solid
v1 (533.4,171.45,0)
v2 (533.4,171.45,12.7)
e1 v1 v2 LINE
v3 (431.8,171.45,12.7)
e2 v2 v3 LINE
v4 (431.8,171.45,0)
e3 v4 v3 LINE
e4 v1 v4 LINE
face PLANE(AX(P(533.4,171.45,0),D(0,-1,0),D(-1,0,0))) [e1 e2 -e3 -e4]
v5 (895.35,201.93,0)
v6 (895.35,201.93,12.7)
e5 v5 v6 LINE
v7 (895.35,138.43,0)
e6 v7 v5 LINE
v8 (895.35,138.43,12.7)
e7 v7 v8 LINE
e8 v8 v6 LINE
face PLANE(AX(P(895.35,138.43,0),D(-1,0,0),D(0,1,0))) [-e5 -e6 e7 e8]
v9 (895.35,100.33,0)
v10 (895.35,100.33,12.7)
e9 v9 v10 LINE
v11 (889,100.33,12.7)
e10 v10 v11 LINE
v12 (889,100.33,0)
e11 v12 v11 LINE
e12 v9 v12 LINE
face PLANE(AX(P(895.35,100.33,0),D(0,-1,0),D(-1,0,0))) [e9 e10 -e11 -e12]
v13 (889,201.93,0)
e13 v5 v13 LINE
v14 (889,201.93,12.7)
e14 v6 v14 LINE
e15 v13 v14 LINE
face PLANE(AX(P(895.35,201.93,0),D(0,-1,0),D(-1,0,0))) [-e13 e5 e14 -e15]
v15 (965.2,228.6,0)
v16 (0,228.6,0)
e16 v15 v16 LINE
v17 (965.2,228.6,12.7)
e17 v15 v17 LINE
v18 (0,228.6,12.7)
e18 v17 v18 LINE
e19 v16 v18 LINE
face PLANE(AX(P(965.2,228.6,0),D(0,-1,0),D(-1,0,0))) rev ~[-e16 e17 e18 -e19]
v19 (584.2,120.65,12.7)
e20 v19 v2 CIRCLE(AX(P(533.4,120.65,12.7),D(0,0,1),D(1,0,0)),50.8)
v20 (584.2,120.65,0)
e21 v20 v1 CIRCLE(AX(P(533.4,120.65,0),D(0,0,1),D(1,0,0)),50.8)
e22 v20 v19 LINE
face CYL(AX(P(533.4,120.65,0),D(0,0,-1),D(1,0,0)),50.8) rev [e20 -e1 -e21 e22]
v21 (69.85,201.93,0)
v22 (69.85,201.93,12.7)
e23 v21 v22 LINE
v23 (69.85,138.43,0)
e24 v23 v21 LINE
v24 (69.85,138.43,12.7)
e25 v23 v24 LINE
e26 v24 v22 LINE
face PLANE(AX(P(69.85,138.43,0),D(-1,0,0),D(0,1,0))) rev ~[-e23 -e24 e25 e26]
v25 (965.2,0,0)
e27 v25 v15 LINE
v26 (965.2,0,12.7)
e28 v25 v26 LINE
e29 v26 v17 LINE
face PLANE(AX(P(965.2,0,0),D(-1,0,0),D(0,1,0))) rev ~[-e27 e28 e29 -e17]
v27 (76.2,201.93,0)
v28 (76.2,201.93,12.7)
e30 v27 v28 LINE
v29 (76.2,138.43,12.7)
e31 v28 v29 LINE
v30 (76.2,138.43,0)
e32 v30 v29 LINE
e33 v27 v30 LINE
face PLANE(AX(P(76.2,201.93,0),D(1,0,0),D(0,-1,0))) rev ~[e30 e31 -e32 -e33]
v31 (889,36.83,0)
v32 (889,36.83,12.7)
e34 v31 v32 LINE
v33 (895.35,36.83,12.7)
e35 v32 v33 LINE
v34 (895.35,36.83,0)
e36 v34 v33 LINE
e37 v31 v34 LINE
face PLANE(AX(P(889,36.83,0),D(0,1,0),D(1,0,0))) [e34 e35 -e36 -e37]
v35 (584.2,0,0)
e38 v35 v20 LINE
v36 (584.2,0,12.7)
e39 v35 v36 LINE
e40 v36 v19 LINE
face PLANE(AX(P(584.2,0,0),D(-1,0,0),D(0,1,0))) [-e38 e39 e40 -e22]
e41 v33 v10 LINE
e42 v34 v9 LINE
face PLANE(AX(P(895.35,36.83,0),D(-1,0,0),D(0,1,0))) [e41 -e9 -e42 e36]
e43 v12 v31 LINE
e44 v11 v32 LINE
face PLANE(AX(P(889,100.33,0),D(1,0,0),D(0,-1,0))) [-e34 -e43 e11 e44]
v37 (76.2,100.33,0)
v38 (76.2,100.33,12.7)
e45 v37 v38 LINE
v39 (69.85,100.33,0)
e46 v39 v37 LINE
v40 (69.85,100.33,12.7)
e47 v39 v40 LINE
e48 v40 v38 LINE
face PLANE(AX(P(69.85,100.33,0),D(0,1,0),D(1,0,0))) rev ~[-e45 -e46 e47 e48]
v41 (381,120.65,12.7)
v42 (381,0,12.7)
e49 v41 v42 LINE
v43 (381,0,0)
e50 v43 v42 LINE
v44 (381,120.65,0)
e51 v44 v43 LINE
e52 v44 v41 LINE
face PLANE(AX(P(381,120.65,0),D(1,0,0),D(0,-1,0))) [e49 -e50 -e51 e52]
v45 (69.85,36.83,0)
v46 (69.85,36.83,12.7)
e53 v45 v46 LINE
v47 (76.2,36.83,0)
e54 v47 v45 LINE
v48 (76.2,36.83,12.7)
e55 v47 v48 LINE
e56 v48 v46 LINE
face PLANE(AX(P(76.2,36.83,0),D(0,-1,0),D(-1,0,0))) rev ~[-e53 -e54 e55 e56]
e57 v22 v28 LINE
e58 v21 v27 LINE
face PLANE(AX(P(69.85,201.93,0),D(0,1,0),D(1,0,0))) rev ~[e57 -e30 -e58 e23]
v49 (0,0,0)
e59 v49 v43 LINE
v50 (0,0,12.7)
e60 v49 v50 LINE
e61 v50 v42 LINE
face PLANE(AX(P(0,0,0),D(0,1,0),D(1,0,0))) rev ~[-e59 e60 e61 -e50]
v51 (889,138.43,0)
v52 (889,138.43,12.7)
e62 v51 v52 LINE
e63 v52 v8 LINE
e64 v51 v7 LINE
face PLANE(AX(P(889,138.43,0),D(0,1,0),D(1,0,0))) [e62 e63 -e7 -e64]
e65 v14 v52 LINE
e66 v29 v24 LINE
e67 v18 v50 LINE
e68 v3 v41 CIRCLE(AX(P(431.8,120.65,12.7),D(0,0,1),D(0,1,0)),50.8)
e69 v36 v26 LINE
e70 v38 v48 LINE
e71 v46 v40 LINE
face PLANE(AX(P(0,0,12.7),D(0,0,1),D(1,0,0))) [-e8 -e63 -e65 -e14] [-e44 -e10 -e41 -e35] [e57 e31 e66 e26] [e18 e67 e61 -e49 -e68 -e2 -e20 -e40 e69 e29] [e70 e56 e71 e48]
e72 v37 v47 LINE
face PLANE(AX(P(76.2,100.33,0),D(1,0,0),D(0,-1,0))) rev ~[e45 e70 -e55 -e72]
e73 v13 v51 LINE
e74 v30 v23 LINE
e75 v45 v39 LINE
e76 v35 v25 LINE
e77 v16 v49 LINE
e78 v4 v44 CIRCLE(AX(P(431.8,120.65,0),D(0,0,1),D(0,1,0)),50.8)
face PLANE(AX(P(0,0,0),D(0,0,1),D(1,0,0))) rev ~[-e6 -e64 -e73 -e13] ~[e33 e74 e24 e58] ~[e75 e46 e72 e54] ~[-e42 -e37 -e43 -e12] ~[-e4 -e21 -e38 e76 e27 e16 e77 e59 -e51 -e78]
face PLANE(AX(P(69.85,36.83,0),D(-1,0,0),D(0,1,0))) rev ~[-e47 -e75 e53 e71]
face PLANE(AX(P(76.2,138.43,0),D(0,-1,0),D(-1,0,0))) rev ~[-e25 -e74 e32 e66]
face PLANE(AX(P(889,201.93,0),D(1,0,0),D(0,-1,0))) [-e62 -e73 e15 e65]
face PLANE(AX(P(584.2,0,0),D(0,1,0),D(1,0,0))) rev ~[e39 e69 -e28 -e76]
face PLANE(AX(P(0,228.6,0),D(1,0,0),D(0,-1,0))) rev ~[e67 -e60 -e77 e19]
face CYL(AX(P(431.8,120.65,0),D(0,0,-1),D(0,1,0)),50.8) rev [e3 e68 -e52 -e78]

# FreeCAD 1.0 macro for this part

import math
import FreeCAD as App
import Part
import Sketcher
Q = App.Units.Quantity


def add_polygon(sketch, points):
    """Adds a closed chain of lines whose ends are joined by coincident constraints."""
    first, n = sketch.GeometryCount, len(points)
    for a, b in zip(points, points[1:] + points[:1]):
        sketch.addGeometry(Part.LineSegment(App.Vector(*a, 0), App.Vector(*b, 0)), False)
    for i in range(n):
        sketch.addConstraint(Sketcher.Constraint("Coincident", first + i, 2, first + (i + 1) % n, 1))

doc = App.newDocument("Part")
body = doc.addObject("PartDesign::Body", "Body")

# Sketch on XY plane
sketch1 = body.newObject("Sketcher::SketchObject", "Sketch")
sketch1.AttachmentSupport = (doc.getObject("XY_Plane"), [""])
sketch1.MapMode = "FlatFace"
sketch1.addGeometry(Part.LineSegment(App.Vector(584.2, 0, 0), App.Vector(965.2, 0, 0)), False)  # 0
sketch1.addGeometry(Part.LineSegment(App.Vector(965.2, 0, 0), App.Vector(965.2, 228.6, 0)), False)  # 1
sketch1.addGeometry(Part.LineSegment(App.Vector(965.2, 228.6, 0), App.Vector(0, 228.6, 0)), False)  # 2
sketch1.addGeometry(Part.LineSegment(App.Vector(0, 228.6, 0), App.Vector(0, 0, 0)), False)  # 3
sketch1.addGeometry(Part.LineSegment(App.Vector(0, 0, 0), App.Vector(381, 0, 0)), False)  # 4
sketch1.addGeometry(Part.LineSegment(App.Vector(381, 0, 0), App.Vector(381, 120.65, 0)), False)  # 5
sketch1.addGeometry(Part.ArcOfCircle(Part.Circle(App.Vector(431.8, 120.65, 0), App.Vector(0, 0, 1), 50.8), math.radians(90), math.radians(180)), False)  # 6
sketch1.addGeometry(Part.LineSegment(App.Vector(431.8, 171.45, 0), App.Vector(533.4, 171.45, 0)), False)  # 7
sketch1.addGeometry(Part.ArcOfCircle(Part.Circle(App.Vector(533.4, 120.65, 0), App.Vector(0, 0, 1), 50.8), math.radians(0), math.radians(90)), False)  # 8
sketch1.addGeometry(Part.LineSegment(App.Vector(584.2, 120.65, 0), App.Vector(584.2, 0, 0)), False)  # 9
add_polygon(sketch1, [(69.85, 36.83), (69.85, 100.33), (76.2, 100.33), (76.2, 36.83)])  # lines 10-13
add_polygon(sketch1, [(889, 100.33), (895.35, 100.33), (895.35, 36.83), (889, 36.83)])  # lines 14-17
add_polygon(sketch1, [(69.85, 138.43), (69.85, 201.93), (76.2, 201.93), (76.2, 138.43)])  # lines 18-21
add_polygon(sketch1, [(889, 201.93), (895.35, 201.93), (895.35, 138.43), (889, 138.43)])  # lines 22-25
sketch1.addConstraint(Sketcher.Constraint("Coincident", 0, 2, 1, 1))
sketch1.addConstraint(Sketcher.Constraint("Coincident", 1, 2, 2, 1))
sketch1.addConstraint(Sketcher.Constraint("Coincident", 2, 2, 3, 1))
sketch1.addConstraint(Sketcher.Constraint("Coincident", 3, 2, 4, 1))
sketch1.addConstraint(Sketcher.Constraint("Coincident", 4, 2, 5, 1))
sketch1.addConstraint(Sketcher.Constraint("Tangent", 5, 2, 6, 2))
sketch1.addConstraint(Sketcher.Constraint("Tangent", 6, 1, 7, 1))
sketch1.addConstraint(Sketcher.Constraint("Tangent", 7, 2, 8, 2))
sketch1.addConstraint(Sketcher.Constraint("Tangent", 8, 1, 9, 1))
sketch1.addConstraint(Sketcher.Constraint("Coincident", 9, 2, 0, 1))
sketch1.addConstraint(Sketcher.Constraint("Horizontal", 0))
sketch1.addConstraint(Sketcher.Constraint("Vertical", 1))
sketch1.addConstraint(Sketcher.Constraint("Horizontal", 2))
sketch1.addConstraint(Sketcher.Constraint("Vertical", 3))
sketch1.addConstraint(Sketcher.Constraint("Horizontal", 4))
sketch1.addConstraint(Sketcher.Constraint("Vertical", 5))
sketch1.addConstraint(Sketcher.Constraint("Horizontal", 7))
sketch1.addConstraint(Sketcher.Constraint("Vertical", 9))
sketch1.addConstraint(Sketcher.Constraint("Vertical", 10))
sketch1.addConstraint(Sketcher.Constraint("Horizontal", 11))
sketch1.addConstraint(Sketcher.Constraint("Vertical", 12))
sketch1.addConstraint(Sketcher.Constraint("Horizontal", 13))
sketch1.addConstraint(Sketcher.Constraint("Horizontal", 14))
sketch1.addConstraint(Sketcher.Constraint("Vertical", 15))
sketch1.addConstraint(Sketcher.Constraint("Horizontal", 16))
sketch1.addConstraint(Sketcher.Constraint("Vertical", 17))
sketch1.addConstraint(Sketcher.Constraint("Vertical", 18))
sketch1.addConstraint(Sketcher.Constraint("Horizontal", 19))
sketch1.addConstraint(Sketcher.Constraint("Vertical", 20))
sketch1.addConstraint(Sketcher.Constraint("Horizontal", 21))
sketch1.addConstraint(Sketcher.Constraint("Horizontal", 22))
sketch1.addConstraint(Sketcher.Constraint("Vertical", 23))
sketch1.addConstraint(Sketcher.Constraint("Horizontal", 24))
sketch1.addConstraint(Sketcher.Constraint("Vertical", 25))
sketch1.addConstraint(Sketcher.Constraint("Coincident", 3, 2, -1, 1))
sketch1.addConstraint(Sketcher.Constraint("Equal", 6, 8))
sketch1.addConstraint(Sketcher.Constraint("PointOnObject", 0, 2, -1))
sketch1.addConstraint(Sketcher.Constraint("Horizontal", 11, 2, 14, 2))
sketch1.addConstraint(Sketcher.Constraint("Horizontal", 13, 2, 15, 2))
sketch1.addConstraint(Sketcher.Constraint("Horizontal", 19, 2, 22, 2))
sketch1.addConstraint(Sketcher.Constraint("Horizontal", 21, 2, 23, 2))
sketch1.addConstraint(Sketcher.Constraint("Vertical", 13, 2, 18, 2))
sketch1.addConstraint(Sketcher.Constraint("Vertical", 12, 2, 19, 2))
sketch1.addConstraint(Sketcher.Constraint("Vertical", 15, 2, 22, 2))
sketch1.addConstraint(Sketcher.Constraint("Vertical", 17, 2, 24, 2))
sketch1.addConstraint(Sketcher.Constraint("Equal", 0, 4))
sketch1.addConstraint(Sketcher.Constraint("Equal", 13, 14))
sketch1.addConstraint(Sketcher.Constraint("Equal", 17, 18))
sketch1.addConstraint(Sketcher.Constraint("Radius", 6, Q("2 in")))
sketch1.addConstraint(Sketcher.Constraint("DistanceX", 0, 1, 0, 2, Q("15 in")))
sketch1.addConstraint(Sketcher.Constraint("DistanceX", 2, 2, 2, 1, Q("38 in")))
sketch1.addConstraint(Sketcher.Constraint("DistanceY", 1, 1, 1, 2, Q("9 in")))
sketch1.addConstraint(Sketcher.Constraint("DistanceY", 10, 1, 10, 2, Q("2.5 in")))
sketch1.addConstraint(Sketcher.Constraint("DistanceY", 10, 2, 18, 2, Q("4 in")))
sketch1.addConstraint(Sketcher.Constraint("DistanceX", 11, 1, 11, 2, Q("0.25 in")))
sketch1.addConstraint(Sketcher.Constraint("DistanceY", -1, 1, 6, 1, Q("6.75 in")))
sketch1.addConstraint(Sketcher.Constraint("DistanceX", -1, 1, 10, 2, Q("2.75 in")))
sketch1.addConstraint(Sketcher.Constraint("DistanceX", 14, 2, 0, 2, Q("2.75 in")))
sketch1.addConstraint(Sketcher.Constraint("DistanceY", 18, 2, 2, 2, Q("1.05 in")))
pad1 = body.newObject("PartDesign::Pad", "Pad")
pad1.Profile = sketch1
pad1.Length = Q("0.5 in")

doc.recompute()
